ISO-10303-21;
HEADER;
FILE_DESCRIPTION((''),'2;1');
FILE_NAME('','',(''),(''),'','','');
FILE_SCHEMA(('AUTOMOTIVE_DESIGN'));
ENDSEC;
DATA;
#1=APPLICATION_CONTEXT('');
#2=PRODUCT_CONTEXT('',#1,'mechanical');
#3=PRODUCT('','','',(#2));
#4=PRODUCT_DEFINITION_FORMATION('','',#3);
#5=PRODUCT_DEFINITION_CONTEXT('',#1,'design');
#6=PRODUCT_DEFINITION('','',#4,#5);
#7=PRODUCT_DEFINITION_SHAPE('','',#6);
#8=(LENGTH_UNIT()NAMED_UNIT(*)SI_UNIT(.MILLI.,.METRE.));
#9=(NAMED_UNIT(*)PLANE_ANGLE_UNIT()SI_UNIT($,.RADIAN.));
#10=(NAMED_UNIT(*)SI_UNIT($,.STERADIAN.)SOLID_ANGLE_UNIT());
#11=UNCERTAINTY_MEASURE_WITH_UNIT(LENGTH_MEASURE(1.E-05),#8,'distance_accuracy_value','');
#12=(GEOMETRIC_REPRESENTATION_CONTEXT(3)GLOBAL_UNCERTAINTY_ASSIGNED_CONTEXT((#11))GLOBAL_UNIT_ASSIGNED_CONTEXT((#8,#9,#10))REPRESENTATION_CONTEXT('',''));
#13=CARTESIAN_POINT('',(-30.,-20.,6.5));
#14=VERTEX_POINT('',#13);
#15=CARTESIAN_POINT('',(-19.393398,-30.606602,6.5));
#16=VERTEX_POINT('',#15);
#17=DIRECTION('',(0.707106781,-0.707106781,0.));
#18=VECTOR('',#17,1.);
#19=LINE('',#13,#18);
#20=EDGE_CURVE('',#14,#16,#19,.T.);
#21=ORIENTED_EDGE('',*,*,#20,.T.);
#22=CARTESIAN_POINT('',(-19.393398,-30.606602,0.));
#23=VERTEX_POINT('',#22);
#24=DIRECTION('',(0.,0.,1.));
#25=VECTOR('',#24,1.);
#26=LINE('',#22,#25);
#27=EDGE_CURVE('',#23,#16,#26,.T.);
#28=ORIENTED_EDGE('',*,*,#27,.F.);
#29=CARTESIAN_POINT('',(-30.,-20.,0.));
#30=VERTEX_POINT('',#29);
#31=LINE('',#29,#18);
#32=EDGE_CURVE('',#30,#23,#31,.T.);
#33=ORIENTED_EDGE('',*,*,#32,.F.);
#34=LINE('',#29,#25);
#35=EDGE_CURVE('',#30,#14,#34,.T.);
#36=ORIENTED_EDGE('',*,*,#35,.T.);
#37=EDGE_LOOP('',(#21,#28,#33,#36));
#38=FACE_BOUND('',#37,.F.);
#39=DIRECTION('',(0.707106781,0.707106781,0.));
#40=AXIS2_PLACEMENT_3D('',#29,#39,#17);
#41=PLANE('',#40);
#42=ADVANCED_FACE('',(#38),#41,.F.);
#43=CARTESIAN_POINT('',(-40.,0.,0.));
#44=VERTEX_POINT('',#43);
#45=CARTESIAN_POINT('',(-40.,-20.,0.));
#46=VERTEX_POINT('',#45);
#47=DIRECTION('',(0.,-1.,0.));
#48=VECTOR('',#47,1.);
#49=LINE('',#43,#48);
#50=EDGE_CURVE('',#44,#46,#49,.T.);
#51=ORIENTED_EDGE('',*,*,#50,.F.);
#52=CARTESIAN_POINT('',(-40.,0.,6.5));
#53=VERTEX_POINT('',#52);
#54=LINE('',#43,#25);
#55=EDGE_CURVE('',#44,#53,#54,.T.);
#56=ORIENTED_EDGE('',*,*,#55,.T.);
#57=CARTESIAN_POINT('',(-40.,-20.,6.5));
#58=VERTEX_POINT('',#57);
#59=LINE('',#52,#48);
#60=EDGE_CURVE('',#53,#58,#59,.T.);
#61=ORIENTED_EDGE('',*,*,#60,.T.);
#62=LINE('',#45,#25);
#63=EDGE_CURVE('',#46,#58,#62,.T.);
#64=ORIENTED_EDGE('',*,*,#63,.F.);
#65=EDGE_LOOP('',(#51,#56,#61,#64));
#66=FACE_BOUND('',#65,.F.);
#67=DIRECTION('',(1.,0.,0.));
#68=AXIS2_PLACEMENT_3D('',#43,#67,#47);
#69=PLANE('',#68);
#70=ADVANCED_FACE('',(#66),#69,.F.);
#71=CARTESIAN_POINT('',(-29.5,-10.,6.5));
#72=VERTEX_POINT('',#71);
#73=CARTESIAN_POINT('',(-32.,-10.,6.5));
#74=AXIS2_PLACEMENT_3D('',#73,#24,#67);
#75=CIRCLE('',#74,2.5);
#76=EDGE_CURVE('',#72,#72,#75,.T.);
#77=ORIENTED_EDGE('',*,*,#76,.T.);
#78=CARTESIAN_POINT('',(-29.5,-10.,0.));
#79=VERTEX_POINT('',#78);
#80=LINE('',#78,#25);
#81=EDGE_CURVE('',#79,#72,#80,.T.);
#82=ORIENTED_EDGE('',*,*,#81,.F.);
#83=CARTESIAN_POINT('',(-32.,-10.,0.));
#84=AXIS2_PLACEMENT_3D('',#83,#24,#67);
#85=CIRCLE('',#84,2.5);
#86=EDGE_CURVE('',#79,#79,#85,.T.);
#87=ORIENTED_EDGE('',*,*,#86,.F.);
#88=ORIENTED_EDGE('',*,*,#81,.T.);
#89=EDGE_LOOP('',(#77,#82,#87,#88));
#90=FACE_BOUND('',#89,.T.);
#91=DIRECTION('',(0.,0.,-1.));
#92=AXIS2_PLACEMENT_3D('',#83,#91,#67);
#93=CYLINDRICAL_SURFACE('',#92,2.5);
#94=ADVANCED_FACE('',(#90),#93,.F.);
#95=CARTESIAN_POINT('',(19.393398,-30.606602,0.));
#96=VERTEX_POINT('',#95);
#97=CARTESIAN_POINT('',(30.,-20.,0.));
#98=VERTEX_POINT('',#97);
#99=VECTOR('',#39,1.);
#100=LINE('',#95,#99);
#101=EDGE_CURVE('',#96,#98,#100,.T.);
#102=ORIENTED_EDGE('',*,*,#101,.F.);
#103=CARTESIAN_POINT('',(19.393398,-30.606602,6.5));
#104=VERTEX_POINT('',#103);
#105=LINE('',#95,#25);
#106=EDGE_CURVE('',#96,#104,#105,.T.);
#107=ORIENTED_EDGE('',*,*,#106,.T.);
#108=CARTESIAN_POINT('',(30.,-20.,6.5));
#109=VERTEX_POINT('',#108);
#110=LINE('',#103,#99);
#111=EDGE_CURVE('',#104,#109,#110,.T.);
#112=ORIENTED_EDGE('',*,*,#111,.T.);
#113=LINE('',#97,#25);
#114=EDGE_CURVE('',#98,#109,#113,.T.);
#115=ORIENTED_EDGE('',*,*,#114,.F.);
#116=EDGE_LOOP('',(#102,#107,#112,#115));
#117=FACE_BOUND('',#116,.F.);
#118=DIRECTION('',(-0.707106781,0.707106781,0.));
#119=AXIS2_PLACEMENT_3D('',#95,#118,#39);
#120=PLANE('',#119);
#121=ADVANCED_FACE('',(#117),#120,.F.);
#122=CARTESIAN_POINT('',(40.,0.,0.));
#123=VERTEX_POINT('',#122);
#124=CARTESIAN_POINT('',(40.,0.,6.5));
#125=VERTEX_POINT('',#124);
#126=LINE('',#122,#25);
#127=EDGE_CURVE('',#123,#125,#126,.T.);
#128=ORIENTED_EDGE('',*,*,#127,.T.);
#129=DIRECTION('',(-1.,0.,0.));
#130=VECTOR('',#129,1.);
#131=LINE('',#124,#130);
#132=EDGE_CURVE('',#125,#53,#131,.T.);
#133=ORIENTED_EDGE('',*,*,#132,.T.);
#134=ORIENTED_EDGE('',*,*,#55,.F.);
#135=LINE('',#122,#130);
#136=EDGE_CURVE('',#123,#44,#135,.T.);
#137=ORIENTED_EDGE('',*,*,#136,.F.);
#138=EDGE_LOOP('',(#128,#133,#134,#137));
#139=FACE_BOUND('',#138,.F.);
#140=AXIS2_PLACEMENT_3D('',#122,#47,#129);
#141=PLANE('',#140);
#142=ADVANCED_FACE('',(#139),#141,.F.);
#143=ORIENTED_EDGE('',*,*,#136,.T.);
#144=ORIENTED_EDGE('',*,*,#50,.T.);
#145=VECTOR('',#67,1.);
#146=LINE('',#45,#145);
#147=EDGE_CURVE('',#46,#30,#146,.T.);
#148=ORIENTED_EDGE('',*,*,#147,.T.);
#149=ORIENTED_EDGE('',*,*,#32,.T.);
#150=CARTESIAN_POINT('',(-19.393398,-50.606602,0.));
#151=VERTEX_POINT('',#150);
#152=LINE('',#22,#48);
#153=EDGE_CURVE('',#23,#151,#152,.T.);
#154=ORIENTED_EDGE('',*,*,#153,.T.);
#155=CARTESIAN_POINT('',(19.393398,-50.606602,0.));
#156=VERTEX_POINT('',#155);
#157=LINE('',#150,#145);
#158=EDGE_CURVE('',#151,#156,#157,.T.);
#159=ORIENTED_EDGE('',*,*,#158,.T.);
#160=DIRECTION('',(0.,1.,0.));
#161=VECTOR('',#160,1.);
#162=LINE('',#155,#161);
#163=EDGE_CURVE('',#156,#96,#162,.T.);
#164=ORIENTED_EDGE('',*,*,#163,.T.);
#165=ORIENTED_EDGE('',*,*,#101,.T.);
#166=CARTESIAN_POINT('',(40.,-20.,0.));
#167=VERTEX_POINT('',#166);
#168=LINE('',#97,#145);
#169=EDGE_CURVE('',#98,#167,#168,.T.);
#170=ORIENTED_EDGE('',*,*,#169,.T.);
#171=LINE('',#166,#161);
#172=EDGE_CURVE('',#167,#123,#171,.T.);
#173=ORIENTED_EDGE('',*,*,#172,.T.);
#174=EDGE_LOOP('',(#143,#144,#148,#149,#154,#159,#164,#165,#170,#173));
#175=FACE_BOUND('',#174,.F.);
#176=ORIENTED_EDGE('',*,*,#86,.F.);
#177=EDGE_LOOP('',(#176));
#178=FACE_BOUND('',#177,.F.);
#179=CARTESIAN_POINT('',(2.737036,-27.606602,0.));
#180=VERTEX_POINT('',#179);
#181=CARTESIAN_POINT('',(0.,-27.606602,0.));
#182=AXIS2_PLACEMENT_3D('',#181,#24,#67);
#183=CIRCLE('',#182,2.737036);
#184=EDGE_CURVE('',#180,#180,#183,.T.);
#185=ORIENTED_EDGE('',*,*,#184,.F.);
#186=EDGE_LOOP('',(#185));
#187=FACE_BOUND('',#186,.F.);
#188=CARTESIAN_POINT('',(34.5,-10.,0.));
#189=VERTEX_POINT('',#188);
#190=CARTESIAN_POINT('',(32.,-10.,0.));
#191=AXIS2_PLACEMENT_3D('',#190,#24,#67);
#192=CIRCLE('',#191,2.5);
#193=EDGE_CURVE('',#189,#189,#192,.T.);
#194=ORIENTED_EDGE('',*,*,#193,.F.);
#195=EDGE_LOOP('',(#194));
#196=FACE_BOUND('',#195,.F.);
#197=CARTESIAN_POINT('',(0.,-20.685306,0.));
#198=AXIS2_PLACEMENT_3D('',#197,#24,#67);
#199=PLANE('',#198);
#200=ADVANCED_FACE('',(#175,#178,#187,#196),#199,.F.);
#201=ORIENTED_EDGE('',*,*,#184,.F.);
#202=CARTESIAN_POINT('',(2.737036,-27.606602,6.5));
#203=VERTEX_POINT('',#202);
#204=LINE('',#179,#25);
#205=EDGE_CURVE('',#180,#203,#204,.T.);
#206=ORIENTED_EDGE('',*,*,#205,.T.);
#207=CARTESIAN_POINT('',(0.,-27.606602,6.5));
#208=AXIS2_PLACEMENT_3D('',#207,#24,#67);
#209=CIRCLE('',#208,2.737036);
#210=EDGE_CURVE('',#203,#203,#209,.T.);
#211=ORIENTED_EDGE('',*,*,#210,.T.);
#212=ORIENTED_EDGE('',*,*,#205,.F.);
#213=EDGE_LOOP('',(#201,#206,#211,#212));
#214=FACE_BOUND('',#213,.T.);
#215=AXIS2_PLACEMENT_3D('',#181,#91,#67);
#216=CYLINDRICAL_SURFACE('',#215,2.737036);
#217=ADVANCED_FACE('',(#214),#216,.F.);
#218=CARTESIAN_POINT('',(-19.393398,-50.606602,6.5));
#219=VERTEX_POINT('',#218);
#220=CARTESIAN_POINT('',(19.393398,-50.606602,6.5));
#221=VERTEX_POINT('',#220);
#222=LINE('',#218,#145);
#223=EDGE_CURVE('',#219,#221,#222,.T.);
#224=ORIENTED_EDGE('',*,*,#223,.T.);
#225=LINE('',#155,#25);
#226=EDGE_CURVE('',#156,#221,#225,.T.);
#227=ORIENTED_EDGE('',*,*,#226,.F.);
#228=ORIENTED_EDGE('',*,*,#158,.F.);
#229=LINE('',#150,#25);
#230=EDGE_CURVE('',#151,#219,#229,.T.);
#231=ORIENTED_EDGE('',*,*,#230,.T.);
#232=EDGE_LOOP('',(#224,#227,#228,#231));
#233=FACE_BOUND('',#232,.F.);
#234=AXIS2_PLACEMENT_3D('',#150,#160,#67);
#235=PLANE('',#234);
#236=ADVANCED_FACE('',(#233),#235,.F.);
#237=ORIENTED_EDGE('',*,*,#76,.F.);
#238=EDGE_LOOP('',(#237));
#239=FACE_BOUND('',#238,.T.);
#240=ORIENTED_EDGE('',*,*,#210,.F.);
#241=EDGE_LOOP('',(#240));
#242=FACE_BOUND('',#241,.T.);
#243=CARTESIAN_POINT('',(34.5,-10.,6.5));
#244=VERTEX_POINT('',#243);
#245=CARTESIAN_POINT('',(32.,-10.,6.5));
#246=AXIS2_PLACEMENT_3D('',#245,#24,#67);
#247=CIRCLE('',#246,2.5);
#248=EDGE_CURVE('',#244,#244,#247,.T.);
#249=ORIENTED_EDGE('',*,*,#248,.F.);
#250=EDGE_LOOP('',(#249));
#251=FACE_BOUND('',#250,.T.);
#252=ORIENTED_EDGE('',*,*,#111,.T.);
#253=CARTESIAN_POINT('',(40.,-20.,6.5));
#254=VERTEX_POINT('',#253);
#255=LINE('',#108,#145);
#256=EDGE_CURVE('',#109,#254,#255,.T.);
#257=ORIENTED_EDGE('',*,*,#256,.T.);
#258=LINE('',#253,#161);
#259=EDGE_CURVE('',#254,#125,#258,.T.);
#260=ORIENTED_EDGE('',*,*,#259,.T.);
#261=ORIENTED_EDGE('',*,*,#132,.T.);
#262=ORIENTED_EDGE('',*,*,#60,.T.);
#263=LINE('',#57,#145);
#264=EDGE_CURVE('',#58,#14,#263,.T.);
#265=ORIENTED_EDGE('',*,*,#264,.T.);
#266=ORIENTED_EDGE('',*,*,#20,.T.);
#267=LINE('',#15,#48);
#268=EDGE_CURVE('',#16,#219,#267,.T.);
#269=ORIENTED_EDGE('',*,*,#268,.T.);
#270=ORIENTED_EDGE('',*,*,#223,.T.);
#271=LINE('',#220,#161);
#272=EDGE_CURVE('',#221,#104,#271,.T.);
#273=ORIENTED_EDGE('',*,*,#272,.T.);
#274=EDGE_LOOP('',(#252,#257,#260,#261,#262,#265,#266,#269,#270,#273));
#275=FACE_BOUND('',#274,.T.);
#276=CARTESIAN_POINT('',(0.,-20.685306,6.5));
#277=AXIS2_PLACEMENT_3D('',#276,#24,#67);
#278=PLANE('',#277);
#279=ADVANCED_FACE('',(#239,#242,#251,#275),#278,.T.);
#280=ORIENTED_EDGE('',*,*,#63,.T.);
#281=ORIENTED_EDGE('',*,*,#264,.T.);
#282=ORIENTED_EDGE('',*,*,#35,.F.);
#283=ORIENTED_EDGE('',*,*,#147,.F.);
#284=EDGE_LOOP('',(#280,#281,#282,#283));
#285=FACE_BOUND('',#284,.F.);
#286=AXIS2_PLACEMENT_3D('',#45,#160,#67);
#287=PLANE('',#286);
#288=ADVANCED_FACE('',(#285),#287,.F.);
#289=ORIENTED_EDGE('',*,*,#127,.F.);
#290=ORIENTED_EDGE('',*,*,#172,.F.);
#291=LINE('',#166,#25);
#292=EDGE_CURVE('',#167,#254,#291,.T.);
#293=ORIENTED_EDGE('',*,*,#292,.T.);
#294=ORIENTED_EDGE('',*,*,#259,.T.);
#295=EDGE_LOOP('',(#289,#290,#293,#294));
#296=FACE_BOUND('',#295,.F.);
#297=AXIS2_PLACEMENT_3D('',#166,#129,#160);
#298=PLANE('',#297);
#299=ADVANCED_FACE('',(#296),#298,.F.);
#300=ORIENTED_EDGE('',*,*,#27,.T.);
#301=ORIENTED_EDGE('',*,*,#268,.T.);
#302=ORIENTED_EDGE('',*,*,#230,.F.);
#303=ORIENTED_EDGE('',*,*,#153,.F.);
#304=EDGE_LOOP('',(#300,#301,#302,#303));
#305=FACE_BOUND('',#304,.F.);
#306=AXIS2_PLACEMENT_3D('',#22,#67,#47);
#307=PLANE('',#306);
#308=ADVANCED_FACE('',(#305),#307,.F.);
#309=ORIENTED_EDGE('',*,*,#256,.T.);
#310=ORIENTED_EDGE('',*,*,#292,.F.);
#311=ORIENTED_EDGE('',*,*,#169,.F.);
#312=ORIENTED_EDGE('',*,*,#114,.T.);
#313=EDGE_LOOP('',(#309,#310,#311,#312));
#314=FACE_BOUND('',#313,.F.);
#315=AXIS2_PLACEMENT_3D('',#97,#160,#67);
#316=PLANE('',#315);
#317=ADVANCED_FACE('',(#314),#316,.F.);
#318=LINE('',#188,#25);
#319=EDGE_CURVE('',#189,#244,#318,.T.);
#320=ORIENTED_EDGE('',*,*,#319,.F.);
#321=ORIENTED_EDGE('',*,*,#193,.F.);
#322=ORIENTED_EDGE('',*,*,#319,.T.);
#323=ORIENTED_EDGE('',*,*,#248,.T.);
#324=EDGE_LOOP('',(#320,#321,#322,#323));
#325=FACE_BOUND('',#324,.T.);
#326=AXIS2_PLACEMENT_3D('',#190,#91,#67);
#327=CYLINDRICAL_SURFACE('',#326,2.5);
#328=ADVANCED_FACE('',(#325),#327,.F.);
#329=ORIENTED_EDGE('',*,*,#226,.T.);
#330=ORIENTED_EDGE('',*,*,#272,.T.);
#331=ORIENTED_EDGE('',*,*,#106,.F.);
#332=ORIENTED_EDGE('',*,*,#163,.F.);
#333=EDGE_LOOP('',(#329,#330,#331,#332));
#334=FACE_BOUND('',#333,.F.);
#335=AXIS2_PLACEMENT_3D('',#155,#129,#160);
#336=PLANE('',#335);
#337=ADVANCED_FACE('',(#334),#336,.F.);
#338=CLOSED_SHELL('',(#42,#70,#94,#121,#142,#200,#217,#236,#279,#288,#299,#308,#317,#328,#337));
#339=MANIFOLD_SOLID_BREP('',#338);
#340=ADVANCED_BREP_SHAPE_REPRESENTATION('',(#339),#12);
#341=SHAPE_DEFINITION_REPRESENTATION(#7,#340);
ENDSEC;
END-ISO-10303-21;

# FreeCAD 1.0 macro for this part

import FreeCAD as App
import Part
import Sketcher

V = App.Vector
Q = App.Units.Quantity


def add_polygon(sketch, points):
    """Adds a closed chain of lines whose ends are joined by coincident constraints."""
    first, n = sketch.GeometryCount, len(points)
    for a, b in zip(points, points[1:] + points[:1]):
        sketch.addGeometry(Part.LineSegment(App.Vector(*a, 0), App.Vector(*b, 0)), False)
    for i in range(n):
        sketch.addConstraint(Sketcher.Constraint("Coincident", first + i, 2, first + (i + 1) % n, 1))

doc = App.newDocument("Part")
params = doc.addObject("Spreadsheet::Sheet", "Params")
for row, (alias, value) in enumerate([
    ("sketch1_diameter", "5 mm"),
    ("sketch1_width", "80 mm"),
    ("sketch1_width2", "10 mm"),
    ("sketch1_height", "20 mm"),
    ("sketch1_length", "15 mm"),
    ("pad1_length", "6.5 mm"),
], start=1):
    params.set(f"A{row}", alias)
    params.set(f"B{row}", "=" + value)
    params.setAlias(f"B{row}", alias)

body = doc.addObject("PartDesign::Body", "Body")

# Sketch on XY plane
sketch1 = body.newObject("Sketcher::SketchObject", "Sketch")
sketch1.AttachmentSupport = (doc.getObject("XY_Plane"), [""])
sketch1.MapMode = "FlatFace"
add_polygon(sketch1, [(40, 0), (-40, 0), (-40, -20), (-30, -20), (-19.4, -30.6), (-19.4, -50.6), (19.4, -50.6), (19.4, -30.6), (30, -20), (40, -20)])  # lines 0-9
sketch1.addGeometry(Part.Circle(V(0, -27.6, 0), V(0, 0, 1), 2.7), False)  # 10
sketch1.addGeometry(Part.Circle(V(-32, -10, 0), V(0, 0, 1), 2.5), False)  # 11
sketch1.addGeometry(Part.Circle(V(32, -10, 0), V(0, 0, 1), 2.5), False)  # 12
sketch1.addConstraint([
    Sketcher.Constraint("Horizontal", 0),
    Sketcher.Constraint("Vertical", 1),
    Sketcher.Constraint("Horizontal", 2),
    Sketcher.Constraint("Vertical", 4),
    Sketcher.Constraint("Horizontal", 5),
    Sketcher.Constraint("Vertical", 6),
    Sketcher.Constraint("Horizontal", 8),
    Sketcher.Constraint("Vertical", 9),
    Sketcher.Constraint("Equal", 11, 12),
    Sketcher.Constraint("Symmetric", 0, 2, 9, 2, -1, 1),
    Sketcher.Constraint("Symmetric", 11, 3, 12, 3, -2),
    Sketcher.Constraint("Symmetric", 3, 2, 6, 2, -2),
    Sketcher.Constraint("Symmetric", 2, 2, 7, 2, -2),
    Sketcher.Constraint("PointOnObject", 10, 3, -2),
    Sketcher.Constraint("Perpendicular", 3, 7),
    Sketcher.Constraint("Equal", 1, 4),
    Sketcher.Constraint("Diameter", 11, Q("5 mm")),
    Sketcher.Constraint("DistanceX", 0, 2, 0, 1, Q("80 mm")),
    Sketcher.Constraint("DistanceX", 2, 1, 2, 2, Q("10 mm")),
    Sketcher.Constraint("DistanceY", 1, 2, 1, 1, Q("20 mm")),
    Sketcher.Constraint("Distance", 3, Q("15 mm")),
    Sketcher.Constraint("DistanceX", 11, 3, -1, 1, Q("32 mm")),
    Sketcher.Constraint("DistanceY", 11, 3, -1, 1, Q("10 mm")),
    Sketcher.Constraint("DistanceY", 3, 2, 10, 3, Q("3 mm")),
    Sketcher.Constraint("Diameter", 10, Q("5.474072 mm")),
])
sketch1.setExpression("Constraints[26]", "Params.sketch1_diameter")
sketch1.setExpression("Constraints[27]", "Params.sketch1_width")
sketch1.setExpression("Constraints[28]", "Params.sketch1_width2")
sketch1.setExpression("Constraints[29]", "Params.sketch1_height")
sketch1.setExpression("Constraints[30]", "Params.sketch1_length")
pad1 = body.newObject("PartDesign::Pad", "Pad")
pad1.Profile = sketch1
pad1.setExpression("Length", "Params.pad1_length")

doc.recompute()
